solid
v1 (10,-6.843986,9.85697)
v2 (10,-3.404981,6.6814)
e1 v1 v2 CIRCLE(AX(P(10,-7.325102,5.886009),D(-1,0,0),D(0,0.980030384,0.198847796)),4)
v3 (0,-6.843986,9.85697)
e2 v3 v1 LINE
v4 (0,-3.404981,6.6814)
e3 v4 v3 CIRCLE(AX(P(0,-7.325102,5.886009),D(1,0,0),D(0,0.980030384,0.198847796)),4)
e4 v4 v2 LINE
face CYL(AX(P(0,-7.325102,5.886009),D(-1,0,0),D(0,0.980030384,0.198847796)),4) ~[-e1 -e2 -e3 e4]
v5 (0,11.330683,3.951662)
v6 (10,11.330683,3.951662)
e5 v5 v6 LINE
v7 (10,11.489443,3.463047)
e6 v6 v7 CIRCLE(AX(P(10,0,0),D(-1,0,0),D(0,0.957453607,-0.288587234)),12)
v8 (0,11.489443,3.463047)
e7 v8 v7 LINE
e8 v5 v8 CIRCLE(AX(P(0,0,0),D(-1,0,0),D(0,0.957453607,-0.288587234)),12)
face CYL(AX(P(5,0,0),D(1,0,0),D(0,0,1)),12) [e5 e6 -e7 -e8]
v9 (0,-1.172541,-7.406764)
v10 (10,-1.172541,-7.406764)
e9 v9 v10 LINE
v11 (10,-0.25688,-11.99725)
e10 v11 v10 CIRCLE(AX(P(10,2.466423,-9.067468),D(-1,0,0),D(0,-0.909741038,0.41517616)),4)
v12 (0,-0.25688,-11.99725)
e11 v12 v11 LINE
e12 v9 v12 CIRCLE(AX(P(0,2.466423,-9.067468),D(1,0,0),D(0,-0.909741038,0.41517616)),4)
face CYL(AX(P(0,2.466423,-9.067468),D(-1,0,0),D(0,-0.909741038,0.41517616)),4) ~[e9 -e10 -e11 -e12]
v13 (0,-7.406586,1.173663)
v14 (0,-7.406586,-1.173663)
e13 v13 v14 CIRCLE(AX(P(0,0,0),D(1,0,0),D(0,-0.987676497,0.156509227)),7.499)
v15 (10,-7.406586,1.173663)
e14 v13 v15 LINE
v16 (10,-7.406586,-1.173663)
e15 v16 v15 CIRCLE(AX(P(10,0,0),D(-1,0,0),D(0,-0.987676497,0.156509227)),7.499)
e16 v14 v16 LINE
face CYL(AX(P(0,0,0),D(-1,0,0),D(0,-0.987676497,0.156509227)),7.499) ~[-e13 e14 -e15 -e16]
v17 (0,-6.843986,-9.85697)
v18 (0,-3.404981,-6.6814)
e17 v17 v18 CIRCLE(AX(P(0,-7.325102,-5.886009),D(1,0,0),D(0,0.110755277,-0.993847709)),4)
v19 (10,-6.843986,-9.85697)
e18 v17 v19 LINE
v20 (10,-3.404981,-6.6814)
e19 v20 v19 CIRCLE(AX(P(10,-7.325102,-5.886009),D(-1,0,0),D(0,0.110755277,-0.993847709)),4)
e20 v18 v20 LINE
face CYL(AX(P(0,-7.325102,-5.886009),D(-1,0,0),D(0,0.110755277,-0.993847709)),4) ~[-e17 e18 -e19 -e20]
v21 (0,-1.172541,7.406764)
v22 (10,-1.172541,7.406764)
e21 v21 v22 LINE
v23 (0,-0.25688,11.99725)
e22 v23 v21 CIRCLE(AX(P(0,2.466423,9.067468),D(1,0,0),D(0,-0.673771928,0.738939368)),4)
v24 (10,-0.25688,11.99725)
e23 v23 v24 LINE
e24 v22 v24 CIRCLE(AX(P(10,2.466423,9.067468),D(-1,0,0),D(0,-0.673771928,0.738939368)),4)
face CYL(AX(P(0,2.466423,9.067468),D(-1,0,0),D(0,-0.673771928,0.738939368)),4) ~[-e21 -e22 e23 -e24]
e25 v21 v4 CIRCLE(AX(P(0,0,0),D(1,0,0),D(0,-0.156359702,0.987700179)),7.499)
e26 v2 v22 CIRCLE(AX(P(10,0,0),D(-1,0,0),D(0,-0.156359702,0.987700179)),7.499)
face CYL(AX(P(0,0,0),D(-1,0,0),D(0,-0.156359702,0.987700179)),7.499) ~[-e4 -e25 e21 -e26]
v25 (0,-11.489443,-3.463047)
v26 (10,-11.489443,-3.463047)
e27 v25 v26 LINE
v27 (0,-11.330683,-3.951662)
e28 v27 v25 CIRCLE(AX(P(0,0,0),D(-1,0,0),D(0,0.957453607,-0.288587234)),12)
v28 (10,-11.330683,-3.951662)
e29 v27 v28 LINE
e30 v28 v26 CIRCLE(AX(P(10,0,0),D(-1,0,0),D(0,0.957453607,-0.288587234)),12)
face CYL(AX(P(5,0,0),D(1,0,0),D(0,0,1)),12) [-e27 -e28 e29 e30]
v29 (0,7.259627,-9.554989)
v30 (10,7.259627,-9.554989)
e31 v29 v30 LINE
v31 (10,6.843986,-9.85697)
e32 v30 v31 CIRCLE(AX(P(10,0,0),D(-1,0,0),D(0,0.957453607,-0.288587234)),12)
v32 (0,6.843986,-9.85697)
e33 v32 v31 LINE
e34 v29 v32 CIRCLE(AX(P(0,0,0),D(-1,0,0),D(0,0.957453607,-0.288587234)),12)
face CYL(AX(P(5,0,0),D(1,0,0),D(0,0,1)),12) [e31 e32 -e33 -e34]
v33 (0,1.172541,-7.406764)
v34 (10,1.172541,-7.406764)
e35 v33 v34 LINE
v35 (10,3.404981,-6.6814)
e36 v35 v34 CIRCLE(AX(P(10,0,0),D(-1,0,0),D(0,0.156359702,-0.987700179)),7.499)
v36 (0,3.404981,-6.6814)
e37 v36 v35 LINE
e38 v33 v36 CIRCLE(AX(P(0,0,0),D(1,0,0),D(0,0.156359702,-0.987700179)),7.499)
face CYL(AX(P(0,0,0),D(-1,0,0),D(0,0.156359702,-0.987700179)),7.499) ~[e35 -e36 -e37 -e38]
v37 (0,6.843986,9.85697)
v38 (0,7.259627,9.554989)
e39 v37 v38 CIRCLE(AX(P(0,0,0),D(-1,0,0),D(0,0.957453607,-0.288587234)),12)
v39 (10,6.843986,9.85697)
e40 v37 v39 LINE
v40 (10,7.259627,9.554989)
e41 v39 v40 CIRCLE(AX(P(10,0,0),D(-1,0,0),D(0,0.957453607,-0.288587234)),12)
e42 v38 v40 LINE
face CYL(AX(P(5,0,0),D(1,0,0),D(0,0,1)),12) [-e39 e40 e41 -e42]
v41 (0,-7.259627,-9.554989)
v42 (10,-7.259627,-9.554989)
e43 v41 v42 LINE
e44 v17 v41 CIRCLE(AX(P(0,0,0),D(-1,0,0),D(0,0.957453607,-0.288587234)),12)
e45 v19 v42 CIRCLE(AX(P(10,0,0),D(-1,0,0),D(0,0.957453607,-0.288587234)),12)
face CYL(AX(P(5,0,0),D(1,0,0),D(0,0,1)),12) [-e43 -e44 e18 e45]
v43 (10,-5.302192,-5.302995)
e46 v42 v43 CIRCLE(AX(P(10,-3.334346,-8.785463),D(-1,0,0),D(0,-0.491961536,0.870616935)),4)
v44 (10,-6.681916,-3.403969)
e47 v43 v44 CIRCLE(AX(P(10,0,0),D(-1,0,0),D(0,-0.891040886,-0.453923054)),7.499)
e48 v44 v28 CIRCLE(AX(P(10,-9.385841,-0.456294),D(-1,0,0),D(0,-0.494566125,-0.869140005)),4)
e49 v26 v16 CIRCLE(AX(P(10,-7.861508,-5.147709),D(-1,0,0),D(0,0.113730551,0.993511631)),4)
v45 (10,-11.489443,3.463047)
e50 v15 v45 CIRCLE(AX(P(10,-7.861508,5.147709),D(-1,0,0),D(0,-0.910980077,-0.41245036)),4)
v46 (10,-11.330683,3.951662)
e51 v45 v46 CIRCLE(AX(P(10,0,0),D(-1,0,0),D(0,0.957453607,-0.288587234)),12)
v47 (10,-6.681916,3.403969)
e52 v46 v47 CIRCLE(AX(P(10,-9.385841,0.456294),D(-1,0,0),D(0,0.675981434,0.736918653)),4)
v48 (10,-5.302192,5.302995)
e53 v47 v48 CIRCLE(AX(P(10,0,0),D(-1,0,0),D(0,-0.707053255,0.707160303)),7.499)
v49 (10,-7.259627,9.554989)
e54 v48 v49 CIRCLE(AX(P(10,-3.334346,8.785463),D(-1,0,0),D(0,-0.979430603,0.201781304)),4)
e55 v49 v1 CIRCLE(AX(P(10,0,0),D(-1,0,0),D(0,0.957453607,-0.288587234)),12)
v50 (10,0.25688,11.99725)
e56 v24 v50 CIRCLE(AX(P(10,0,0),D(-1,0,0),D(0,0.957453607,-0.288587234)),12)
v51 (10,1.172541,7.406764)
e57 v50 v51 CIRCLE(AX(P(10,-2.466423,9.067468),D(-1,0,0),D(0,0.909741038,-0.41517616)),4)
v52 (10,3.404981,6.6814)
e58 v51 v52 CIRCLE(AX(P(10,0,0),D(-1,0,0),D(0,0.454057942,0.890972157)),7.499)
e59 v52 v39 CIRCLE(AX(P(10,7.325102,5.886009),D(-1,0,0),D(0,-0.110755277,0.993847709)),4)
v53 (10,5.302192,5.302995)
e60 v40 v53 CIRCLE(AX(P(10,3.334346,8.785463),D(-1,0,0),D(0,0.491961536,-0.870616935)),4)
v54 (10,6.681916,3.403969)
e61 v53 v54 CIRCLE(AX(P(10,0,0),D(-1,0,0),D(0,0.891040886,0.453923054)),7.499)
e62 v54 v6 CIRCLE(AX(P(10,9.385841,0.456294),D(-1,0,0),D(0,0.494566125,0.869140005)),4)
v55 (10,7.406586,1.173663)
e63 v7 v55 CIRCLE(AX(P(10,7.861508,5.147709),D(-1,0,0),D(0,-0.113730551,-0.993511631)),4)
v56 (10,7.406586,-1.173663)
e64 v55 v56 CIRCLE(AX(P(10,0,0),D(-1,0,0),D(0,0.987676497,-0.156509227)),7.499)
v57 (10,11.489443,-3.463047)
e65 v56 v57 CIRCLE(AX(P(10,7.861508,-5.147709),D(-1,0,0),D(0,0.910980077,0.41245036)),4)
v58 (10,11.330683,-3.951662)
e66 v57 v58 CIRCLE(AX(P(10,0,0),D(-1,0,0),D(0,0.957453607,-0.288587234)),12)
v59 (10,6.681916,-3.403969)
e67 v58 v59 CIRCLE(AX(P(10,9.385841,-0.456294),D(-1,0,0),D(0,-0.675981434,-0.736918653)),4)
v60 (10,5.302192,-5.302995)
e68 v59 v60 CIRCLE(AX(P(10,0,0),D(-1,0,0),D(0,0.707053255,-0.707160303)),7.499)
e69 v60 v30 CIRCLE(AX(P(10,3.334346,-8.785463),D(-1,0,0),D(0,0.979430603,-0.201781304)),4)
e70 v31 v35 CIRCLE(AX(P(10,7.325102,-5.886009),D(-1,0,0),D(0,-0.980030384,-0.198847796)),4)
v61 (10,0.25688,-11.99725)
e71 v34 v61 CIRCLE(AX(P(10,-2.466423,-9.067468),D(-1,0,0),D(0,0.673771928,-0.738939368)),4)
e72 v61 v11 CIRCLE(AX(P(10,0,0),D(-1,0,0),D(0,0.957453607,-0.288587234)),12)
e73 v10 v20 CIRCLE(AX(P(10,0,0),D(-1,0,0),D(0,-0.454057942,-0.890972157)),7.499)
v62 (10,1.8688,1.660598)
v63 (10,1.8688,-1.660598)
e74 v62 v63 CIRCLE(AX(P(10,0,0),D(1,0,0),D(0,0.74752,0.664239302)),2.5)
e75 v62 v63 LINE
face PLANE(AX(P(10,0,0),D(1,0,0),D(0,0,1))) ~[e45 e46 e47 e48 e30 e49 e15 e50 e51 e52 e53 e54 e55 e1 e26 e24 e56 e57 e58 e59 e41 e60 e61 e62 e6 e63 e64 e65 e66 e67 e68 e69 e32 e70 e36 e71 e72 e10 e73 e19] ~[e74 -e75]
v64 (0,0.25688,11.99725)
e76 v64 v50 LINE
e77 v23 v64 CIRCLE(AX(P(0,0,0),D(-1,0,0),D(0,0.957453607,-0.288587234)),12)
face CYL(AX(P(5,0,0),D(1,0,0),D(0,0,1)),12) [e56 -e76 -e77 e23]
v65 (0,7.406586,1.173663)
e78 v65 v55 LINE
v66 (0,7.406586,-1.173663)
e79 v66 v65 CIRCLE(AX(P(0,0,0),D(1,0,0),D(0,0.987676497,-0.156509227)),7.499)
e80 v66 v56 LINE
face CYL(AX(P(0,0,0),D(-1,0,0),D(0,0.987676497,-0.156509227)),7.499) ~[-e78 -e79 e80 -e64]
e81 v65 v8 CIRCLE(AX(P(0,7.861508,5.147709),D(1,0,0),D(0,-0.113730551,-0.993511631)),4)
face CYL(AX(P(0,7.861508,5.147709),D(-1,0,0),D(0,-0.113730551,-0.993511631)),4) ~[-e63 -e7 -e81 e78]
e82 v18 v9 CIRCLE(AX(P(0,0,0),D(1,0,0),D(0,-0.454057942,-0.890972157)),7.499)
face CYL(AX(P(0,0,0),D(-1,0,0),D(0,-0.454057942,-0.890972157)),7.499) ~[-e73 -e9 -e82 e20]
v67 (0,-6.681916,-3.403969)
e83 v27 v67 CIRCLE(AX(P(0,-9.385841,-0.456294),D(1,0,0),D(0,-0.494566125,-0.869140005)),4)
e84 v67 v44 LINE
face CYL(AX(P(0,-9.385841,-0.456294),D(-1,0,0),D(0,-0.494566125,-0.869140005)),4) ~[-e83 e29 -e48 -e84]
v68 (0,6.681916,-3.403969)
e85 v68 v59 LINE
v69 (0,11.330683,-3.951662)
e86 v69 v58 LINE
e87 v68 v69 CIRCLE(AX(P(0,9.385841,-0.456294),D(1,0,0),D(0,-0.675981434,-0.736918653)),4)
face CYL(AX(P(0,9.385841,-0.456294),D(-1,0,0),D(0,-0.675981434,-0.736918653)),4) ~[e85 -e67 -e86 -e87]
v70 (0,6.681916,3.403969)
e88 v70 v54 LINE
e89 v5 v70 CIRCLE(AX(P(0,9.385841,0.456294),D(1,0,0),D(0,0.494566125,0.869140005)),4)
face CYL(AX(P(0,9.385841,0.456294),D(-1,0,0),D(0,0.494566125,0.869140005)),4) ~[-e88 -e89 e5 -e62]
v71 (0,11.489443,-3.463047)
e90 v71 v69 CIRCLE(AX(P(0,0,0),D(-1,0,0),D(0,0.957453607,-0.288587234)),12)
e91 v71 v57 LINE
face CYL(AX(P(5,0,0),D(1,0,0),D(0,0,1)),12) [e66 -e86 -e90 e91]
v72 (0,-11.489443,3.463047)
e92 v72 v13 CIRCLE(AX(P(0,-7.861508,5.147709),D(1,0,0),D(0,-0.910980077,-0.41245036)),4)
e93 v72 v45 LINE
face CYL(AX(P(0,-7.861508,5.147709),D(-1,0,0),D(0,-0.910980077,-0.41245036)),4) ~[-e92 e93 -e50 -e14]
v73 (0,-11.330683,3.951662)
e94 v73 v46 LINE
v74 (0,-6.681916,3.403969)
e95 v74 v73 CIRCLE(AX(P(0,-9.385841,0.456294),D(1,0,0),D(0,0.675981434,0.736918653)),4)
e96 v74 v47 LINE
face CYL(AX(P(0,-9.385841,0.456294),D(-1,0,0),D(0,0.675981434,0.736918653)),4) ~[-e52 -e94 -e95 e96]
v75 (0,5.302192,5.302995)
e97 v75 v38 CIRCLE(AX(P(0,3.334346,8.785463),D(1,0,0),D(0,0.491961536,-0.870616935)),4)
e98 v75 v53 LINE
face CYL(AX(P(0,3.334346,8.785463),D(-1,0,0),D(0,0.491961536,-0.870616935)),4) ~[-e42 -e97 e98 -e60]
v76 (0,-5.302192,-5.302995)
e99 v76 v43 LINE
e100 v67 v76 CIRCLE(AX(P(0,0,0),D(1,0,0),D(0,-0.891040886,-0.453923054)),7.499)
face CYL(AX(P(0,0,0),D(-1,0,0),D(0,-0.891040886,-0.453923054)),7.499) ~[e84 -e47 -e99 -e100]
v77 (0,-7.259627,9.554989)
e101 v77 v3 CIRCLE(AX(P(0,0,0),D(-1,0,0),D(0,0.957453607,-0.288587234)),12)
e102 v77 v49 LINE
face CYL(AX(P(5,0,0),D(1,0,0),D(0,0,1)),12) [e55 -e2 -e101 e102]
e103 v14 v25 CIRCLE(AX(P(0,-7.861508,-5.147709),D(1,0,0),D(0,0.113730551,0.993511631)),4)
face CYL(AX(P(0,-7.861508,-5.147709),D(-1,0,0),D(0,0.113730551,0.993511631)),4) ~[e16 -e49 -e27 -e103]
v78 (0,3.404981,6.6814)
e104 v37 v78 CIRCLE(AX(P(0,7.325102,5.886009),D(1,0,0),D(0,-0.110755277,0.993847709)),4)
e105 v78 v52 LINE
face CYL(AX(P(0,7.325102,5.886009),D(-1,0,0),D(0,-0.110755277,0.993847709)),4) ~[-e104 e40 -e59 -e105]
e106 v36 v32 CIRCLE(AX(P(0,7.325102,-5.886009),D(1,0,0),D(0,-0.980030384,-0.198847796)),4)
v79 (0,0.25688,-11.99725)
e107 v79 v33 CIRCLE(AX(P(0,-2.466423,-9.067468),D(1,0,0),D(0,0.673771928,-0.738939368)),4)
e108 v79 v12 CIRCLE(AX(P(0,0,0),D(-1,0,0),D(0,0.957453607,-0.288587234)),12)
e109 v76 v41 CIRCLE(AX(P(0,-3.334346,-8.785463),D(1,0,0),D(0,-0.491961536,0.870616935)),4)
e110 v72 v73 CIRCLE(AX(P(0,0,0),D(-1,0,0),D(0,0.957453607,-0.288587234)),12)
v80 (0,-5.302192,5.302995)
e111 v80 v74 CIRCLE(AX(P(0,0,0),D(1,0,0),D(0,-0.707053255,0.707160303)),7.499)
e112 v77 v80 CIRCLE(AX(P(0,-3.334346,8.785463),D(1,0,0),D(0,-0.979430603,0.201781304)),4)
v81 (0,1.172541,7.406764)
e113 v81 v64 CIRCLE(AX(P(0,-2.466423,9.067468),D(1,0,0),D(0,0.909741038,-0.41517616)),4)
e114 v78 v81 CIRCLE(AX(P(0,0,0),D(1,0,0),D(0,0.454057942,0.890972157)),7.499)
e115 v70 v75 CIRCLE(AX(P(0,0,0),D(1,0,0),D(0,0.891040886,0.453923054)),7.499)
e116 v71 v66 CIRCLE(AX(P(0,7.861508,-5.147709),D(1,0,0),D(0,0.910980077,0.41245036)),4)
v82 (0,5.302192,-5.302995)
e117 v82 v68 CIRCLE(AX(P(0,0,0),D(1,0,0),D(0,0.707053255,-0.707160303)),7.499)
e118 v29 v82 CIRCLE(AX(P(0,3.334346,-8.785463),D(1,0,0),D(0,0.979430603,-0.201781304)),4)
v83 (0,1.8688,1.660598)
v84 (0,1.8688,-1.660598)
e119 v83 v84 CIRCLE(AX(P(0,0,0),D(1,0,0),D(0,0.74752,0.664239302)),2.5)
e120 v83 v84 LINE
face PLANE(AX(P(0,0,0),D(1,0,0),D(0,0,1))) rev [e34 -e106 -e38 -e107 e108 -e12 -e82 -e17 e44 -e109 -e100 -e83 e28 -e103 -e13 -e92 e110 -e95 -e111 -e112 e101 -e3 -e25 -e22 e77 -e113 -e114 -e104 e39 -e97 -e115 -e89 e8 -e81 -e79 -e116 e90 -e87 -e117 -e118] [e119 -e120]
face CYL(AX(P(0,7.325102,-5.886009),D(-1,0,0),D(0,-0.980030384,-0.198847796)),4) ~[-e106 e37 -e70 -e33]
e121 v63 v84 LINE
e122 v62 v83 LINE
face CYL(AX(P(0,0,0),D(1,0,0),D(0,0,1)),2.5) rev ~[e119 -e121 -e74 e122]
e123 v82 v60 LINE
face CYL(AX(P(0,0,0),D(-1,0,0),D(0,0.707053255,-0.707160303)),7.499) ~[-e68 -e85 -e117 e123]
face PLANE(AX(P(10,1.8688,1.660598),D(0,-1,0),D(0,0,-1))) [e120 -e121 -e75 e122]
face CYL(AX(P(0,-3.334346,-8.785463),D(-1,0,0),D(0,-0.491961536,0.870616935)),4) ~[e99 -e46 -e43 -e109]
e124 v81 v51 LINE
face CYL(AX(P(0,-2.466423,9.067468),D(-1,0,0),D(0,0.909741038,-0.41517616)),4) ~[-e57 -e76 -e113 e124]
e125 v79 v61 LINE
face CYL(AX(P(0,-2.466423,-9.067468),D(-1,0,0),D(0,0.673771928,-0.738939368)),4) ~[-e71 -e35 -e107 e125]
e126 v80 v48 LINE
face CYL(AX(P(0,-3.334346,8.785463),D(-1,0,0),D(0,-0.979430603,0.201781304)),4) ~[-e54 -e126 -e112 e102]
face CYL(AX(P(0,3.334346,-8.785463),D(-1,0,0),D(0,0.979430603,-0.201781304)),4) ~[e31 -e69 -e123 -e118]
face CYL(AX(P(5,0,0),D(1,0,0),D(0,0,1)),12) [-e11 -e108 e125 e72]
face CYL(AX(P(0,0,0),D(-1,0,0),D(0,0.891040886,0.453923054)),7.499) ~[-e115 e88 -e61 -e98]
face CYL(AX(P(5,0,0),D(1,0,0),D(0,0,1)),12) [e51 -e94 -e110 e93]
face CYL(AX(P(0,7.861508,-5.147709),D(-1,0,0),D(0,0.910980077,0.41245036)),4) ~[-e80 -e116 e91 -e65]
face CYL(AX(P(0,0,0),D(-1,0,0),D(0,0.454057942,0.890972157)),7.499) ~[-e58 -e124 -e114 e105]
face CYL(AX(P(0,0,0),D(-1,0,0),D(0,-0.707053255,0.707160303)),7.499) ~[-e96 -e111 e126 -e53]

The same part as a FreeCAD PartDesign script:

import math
import FreeCAD as App
import Part
import Sketcher
from FreeCAD import Vector

doc = App.newDocument("Part")
body = doc.addObject("PartDesign::Body", "Body")

# Sketch on XZ plane
sketch1 = doc.addObject("Sketcher::SketchObject", "Sketch")
body.addObject(sketch1)
sketch1.AttachmentSupport = (doc.XZ_Plane, [""])
sketch1.MapMode = "FlatFace"
sketch1.addGeometry(Part.LineSegment(Vector(0, -12, 0), Vector(0, 0, 0)), False)
sketch1.addGeometry(Part.LineSegment(Vector(0, 0, 0), Vector(10, 0, 0)), False)
sketch1.addGeometry(Part.LineSegment(Vector(10, 0, 0), Vector(10, -12, 0)), False)
sketch1.addGeometry(Part.LineSegment(Vector(10, -12, 0), Vector(0, -12, 0)), False)
sketch1.addConstraint(Sketcher.Constraint("Coincident", 0, 2, 1, 1))
sketch1.addConstraint(Sketcher.Constraint("Coincident", 1, 2, 2, 1))
sketch1.addConstraint(Sketcher.Constraint("Coincident", 2, 2, 3, 1))
sketch1.addConstraint(Sketcher.Constraint("Coincident", 3, 2, 0, 1))
sketch1.addConstraint(Sketcher.Constraint("Vertical", 0))
sketch1.addConstraint(Sketcher.Constraint("Horizontal", 1))
sketch1.addConstraint(Sketcher.Constraint("Vertical", 2))
sketch1.addConstraint(Sketcher.Constraint("Horizontal", 3))
sketch1.addConstraint(Sketcher.Constraint("Coincident", 0, 2, -1, 1))
sketch1.addConstraint(Sketcher.Constraint("DistanceX", 1, 1, 1, 2, 10.0))
sketch1.addConstraint(Sketcher.Constraint("DistanceY", 0, 1, 0, 2, 12.0))
revolution = doc.addObject("PartDesign::Revolution", "Revolution")
body.addObject(revolution)
revolution.Profile = sketch1
revolution.ReferenceAxis = (sketch1, ["H_Axis"])
revolution.Angle = 360

# Sketch on YZ plane
sketch2 = doc.addObject("Sketcher::SketchObject", "Sketch001")
body.addObject(sketch2)
sketch2.AttachmentSupport = (doc.YZ_Plane, [""])
sketch2.MapMode = "FlatFace"
sketch2.addGeometry(Part.ArcOfCircle(Part.Circle(Vector(0, 0, 0), Vector(0, 0, 1), 7.499), math.radians(-9.004337), math.radians(9.004337)), False)
sketch2.addGeometry(Part.ArcOfCircle(Part.Circle(Vector(7.861508, -5.147709, 0), Vector(0, 0, 1), 4), math.radians(24.358856), math.radians(96.530411)), False)
sketch2.addGeometry(Part.ArcOfCircle(Part.Circle(Vector(0, 0, 0), Vector(0, 0, 1), 12.0254), math.radians(-16.910446), math.radians(16.910446)), False)
sketch2.addGeometry(Part.ArcOfCircle(Part.Circle(Vector(7.861508, 5.147709, 0), Vector(0, 0, 1), 4), math.radians(-96.530411), math.radians(-24.358856)), False)
sketch2.addConstraint(Sketcher.Constraint("Coincident", 0, 1, 1, 2))
sketch2.addConstraint(Sketcher.Constraint("Coincident", 1, 1, 2, 1))
sketch2.addConstraint(Sketcher.Constraint("Coincident", 2, 2, 3, 2))
sketch2.addConstraint(Sketcher.Constraint("Coincident", 3, 1, 0, 2))
sketch2.addConstraint(Sketcher.Constraint("Coincident", 0, 3, -1, 1))
sketch2.addConstraint(Sketcher.Constraint("Coincident", 2, 3, -1, 1))
sketch2.addConstraint(Sketcher.Constraint("Equal", 1, 3))
sketch2.addConstraint(Sketcher.Constraint("Symmetric", 1, 3, 3, 3, -1))
sketch2.addConstraint(Sketcher.Constraint("Radius", 1, 4.0))
sketch2.addConstraint(Sketcher.Constraint("Radius", 0, 7.499))
sketch2.addConstraint(Sketcher.Constraint("Radius", 2, 12.0254))
sketch2.addConstraint(Sketcher.Constraint("DistanceY", 1, 3, 1, 1, 1.649801))
sketch2.addConstraint(Sketcher.Constraint("DistanceX", -1, 1, 1, 3, 7.861508))
pocket1 = doc.addObject("PartDesign::Pocket", "Pocket")
body.addObject(pocket1)
pocket1.Profile = sketch2
pocket1.Type = "ThroughAll"
pocket1.Reversed = True
doc.recompute()

polarpattern = doc.addObject("PartDesign::PolarPattern", "PolarPattern")
body.addObject(polarpattern)
polarpattern.Originals = [pocket1]
polarpattern.Axis = (doc.X_Axis, [""])
polarpattern.Angle = 360
polarpattern.Occurrences = 10
body.Tip = polarpattern

# Sketch on YZ plane
sketch3 = doc.addObject("Sketcher::SketchObject", "Sketch002")
body.addObject(sketch3)
sketch3.AttachmentSupport = (doc.YZ_Plane, [""])
sketch3.MapMode = "FlatFace"
sketch3.addGeometry(Part.Circle(Vector(0, 0, 0), Vector(0, 0, 1), 2.5), False)
sketch3.addConstraint(Sketcher.Constraint("Coincident", 0, 3, -1, 1))
sketch3.addConstraint(Sketcher.Constraint("Diameter", 0, 5.0))
pocket2 = doc.addObject("PartDesign::Pocket", "Pocket001")
body.addObject(pocket2)
pocket2.Profile = sketch3
pocket2.Length = 100.000102
pocket2.Midplane = True

# Sketch on YZ plane
sketch4 = doc.addObject("Sketcher::SketchObject", "Sketch003")
body.addObject(sketch4)
sketch4.AttachmentSupport = (doc.YZ_Plane, [""])
sketch4.MapMode = "FlatFace"
sketch4.AttachmentOffset = App.Placement(Vector(0, 0, 10), App.Rotation())
sketch4.addGeometry(Part.LineSegment(Vector(1.8688, 1.660598, 0), Vector(1.8688, -1.660598, 0)), False)
sketch4.addGeometry(Part.ArcOfCircle(Part.Circle(Vector(0, 0, 0), Vector(0, 0, 1), 2.5), math.radians(-41.623993), math.radians(41.623993)), False)
sketch4.addConstraint(Sketcher.Constraint("Coincident", 0, 1, 1, 2))
sketch4.addConstraint(Sketcher.Constraint("Coincident", 1, 1, 0, 2))
sketch4.addConstraint(Sketcher.Constraint("Vertical", 0))
sketch4.addConstraint(Sketcher.Constraint("Coincident", 1, 3, -1, 1))
sketch4.addConstraint(Sketcher.Constraint("Radius", 1, 2.5))
sketch4.addConstraint(Sketcher.Constraint("DistanceX", -1, 1, 0, 1, 1.8688))
pad1 = doc.addObject("PartDesign::Pad", "Pad")
body.addObject(pad1)
pad1.Profile = sketch4
pad1.Length = 10
pad1.Reversed = True

doc.recompute()
